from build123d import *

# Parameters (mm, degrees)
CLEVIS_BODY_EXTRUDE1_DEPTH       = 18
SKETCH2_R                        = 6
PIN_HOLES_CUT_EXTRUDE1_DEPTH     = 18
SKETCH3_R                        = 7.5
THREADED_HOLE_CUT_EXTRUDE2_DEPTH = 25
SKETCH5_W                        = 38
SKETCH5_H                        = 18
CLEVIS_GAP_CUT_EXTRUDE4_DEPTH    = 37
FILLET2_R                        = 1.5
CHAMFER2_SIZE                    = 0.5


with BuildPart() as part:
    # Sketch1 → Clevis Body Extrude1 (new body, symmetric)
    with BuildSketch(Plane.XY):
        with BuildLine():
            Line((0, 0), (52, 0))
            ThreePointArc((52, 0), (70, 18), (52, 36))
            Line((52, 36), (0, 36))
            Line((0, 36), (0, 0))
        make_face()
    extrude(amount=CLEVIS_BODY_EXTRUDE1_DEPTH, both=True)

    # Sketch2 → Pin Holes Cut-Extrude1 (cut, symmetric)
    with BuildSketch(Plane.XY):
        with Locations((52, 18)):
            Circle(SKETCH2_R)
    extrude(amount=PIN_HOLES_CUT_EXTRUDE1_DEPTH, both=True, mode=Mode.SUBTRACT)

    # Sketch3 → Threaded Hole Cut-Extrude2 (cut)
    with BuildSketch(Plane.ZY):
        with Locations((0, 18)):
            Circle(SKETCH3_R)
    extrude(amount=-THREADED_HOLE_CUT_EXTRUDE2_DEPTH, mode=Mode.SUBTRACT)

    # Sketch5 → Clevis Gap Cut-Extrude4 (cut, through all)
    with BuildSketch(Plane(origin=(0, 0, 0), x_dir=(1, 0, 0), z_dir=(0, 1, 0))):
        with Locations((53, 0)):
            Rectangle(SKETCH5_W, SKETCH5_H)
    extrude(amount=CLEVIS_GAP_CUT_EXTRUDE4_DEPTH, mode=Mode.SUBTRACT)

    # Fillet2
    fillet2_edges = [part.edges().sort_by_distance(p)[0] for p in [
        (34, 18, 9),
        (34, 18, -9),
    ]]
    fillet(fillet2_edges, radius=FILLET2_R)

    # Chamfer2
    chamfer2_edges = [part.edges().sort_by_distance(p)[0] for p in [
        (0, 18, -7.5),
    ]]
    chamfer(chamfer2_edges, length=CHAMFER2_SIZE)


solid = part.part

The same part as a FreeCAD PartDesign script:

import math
import FreeCAD as App
import Part
import Sketcher


def edges_at(feature, points):
    """Names of the edges that pass closest to the given points."""
    edges = feature.Shape.Edges
    near = lambda p: min(range(len(edges)), key=lambda i: edges[i].distToShape(Part.Vertex(*p))[0])
    return sorted({f"Edge{near(p) + 1}" for p in points})


def add_polygon(sketch, points):
    """Adds a closed chain of lines whose ends are joined by coincident constraints."""
    first, n = sketch.GeometryCount, len(points)
    for a, b in zip(points, points[1:] + points[:1]):
        sketch.addGeometry(Part.LineSegment(App.Vector(*a, 0), App.Vector(*b, 0)), False)
    for i in range(n):
        sketch.addConstraint(Sketcher.Constraint("Coincident", first + i, 2, first + (i + 1) % n, 1))

doc = App.newDocument("Part")
body = doc.addObject("PartDesign::Body", "Body")

# Sketch on XY plane
sketch1 = doc.addObject("Sketcher::SketchObject", "Sketch")
body.addObject(sketch1)
sketch1.AttachmentSupport = (doc.XY_Plane, [""])
sketch1.MapMode = "FlatFace"
sketch1.addGeometry([
    Part.LineSegment(App.Vector(0, 0, 0), App.Vector(52, 0, 0)),
    Part.ArcOfCircle(Part.Circle(App.Vector(52, 18, 0), App.Vector(0, 0, 1), 18), math.radians(-90), math.radians(90)),
    Part.LineSegment(App.Vector(52, 36, 0), App.Vector(0, 36, 0)),
    Part.LineSegment(App.Vector(0, 36, 0), App.Vector(0, 0, 0)),
], False)
sketch1.addConstraint([
    Sketcher.Constraint("Tangent", 0, 2, 1, 1),
    Sketcher.Constraint("Tangent", 1, 2, 2, 1),
    Sketcher.Constraint("Coincident", 2, 2, 3, 1),
    Sketcher.Constraint("Coincident", 3, 2, 0, 1),
    Sketcher.Constraint("Horizontal", 0),
    Sketcher.Constraint("Horizontal", 2),
    Sketcher.Constraint("Vertical", 3),
    Sketcher.Constraint("Coincident", 3, 2, -1, 1),
    Sketcher.Constraint("Radius", 1, 18.0),
    Sketcher.Constraint("DistanceX", 0, 1, 0, 2, 52.0),
])
pad1 = doc.addObject("PartDesign::Pad", "Pad")
body.addObject(pad1)
pad1.Profile = sketch1
pad1.Length = 36
pad1.Midplane = True

# Sketch on XY plane
sketch2 = doc.addObject("Sketcher::SketchObject", "Sketch001")
body.addObject(sketch2)
sketch2.AttachmentSupport = (doc.XY_Plane, [""])
sketch2.MapMode = "FlatFace"
sketch2.addGeometry(Part.Circle(App.Vector(52, 18, 0), App.Vector(0, 0, 1), 6), False)
sketch2.addConstraint([
    Sketcher.Constraint("Diameter", 0, 12.0),
    Sketcher.Constraint("DistanceX", -1, 1, 0, 3, 52.0),
    Sketcher.Constraint("DistanceY", -1, 1, 0, 3, 18.0),
])
pocket1 = doc.addObject("PartDesign::Pocket", "Pocket")
body.addObject(pocket1)
pocket1.Profile = sketch2
pocket1.Length = 36
pocket1.Midplane = True

# Sketch on YZ plane
sketch3 = doc.addObject("Sketcher::SketchObject", "Sketch002")
body.addObject(sketch3)
sketch3.AttachmentSupport = (doc.YZ_Plane, [""])
sketch3.MapMode = "FlatFace"
sketch3.addGeometry(Part.Circle(App.Vector(18, 0, 0), App.Vector(0, 0, 1), 8), False)
sketch3.addConstraint([
    Sketcher.Constraint("PointOnObject", 0, 3, -1),
    Sketcher.Constraint("Diameter", 0, 15.0),
    Sketcher.Constraint("DistanceX", -1, 1, 0, 3, 18.0),
])
pocket2 = doc.addObject("PartDesign::Pocket", "Pocket001")
body.addObject(pocket2)
pocket2.Profile = sketch3
pocket2.Length = 25
pocket2.Reversed = True

# Sketch on XZ plane
sketch4 = doc.addObject("Sketcher::SketchObject", "Sketch003")
body.addObject(sketch4)
sketch4.AttachmentSupport = (doc.XZ_Plane, [""])
sketch4.MapMode = "FlatFace"
add_polygon(sketch4, [(34, -9), (34, 9), (72, 9), (72, -9)])  # lines 0-3
sketch4.addConstraint([
    Sketcher.Constraint("Vertical", 0),
    Sketcher.Constraint("Horizontal", 1),
    Sketcher.Constraint("Vertical", 2),
    Sketcher.Constraint("Horizontal", 3),
    Sketcher.Constraint("DistanceX", 1, 1, 1, 2, 38.0),
    Sketcher.Constraint("DistanceY", 0, 1, 0, 2, 18.0),
    Sketcher.Constraint("DistanceX", -1, 1, 0, 2, 34.0),
    Sketcher.Constraint("DistanceY", -1, 1, 0, 2, 9.0),
])
pocket3 = doc.addObject("PartDesign::Pocket", "Pocket002")
body.addObject(pocket3)
pocket3.Profile = sketch4
pocket3.Type = "ThroughAll"
doc.recompute()

fillet = doc.addObject("PartDesign::Fillet", "Fillet")
body.addObject(fillet)
fillet.Base = (pocket3, edges_at(pocket3, [(34, 18, 9), (34, 18, -9)]))
fillet.Radius = 1.5
doc.recompute()

chamfer = doc.addObject("PartDesign::Chamfer", "Chamfer")
body.addObject(chamfer)
chamfer.Base = (fillet, edges_at(fillet, [(0, 18, -7.5)]))
chamfer.Size = 0.5

doc.recompute()
